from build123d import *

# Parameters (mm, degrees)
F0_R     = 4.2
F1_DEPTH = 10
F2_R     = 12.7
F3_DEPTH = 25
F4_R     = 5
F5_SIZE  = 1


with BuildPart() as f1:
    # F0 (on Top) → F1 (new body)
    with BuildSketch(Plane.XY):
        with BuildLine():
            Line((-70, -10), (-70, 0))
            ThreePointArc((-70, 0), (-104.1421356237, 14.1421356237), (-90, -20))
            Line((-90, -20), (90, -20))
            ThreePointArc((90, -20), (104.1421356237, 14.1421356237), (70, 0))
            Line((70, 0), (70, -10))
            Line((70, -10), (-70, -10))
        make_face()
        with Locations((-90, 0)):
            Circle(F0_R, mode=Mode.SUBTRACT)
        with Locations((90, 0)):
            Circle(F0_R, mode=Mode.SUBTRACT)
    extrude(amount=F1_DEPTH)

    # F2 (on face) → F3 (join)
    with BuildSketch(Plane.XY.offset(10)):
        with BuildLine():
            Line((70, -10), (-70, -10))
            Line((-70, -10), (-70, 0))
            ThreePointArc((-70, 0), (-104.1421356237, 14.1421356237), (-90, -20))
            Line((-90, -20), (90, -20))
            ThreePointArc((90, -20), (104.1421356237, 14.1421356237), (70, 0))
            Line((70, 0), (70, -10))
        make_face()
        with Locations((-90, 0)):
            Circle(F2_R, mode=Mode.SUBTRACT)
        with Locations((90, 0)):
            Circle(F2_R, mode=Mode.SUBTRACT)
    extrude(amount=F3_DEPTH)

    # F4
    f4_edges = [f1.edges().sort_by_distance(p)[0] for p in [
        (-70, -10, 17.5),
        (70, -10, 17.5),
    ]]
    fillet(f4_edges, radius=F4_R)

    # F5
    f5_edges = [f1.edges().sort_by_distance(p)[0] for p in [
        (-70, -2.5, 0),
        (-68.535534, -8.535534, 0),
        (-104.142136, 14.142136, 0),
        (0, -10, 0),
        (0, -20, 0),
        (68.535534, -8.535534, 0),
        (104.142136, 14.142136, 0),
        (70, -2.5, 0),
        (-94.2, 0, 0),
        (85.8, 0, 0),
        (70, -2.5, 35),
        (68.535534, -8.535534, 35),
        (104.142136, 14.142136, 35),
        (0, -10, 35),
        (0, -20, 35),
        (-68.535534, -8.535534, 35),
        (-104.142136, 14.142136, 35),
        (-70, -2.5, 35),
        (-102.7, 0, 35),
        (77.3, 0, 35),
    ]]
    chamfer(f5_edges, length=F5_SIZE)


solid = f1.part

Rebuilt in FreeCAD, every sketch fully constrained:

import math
import FreeCAD as App
import Part
import Sketcher


def edges_at(feature, points):
    """Names of the edges that pass closest to the given points."""
    edges = feature.Shape.Edges
    near = lambda p: min(range(len(edges)), key=lambda i: edges[i].distToShape(Part.Vertex(*p))[0])
    return sorted({f"Edge{near(p) + 1}" for p in points})

doc = App.newDocument("Part")
body = doc.addObject("PartDesign::Body", "Body")

sketch1 = doc.addObject("Sketcher::SketchObject", "Sketch")
body.addObject(sketch1)
sketch1.AttachmentSupport = (doc.XY_Plane, [""])
sketch1.MapMode = "FlatFace"
sketch1.addGeometry(Part.LineSegment(App.Vector(-70, -10, 0), App.Vector(-70, 0, 0)), False)
sketch1.addGeometry(Part.ArcOfCircle(Part.Circle(App.Vector(-90, 0, 0), App.Vector(0, 0, 1), 20), math.radians(0), math.radians(270)), False)
sketch1.addGeometry(Part.LineSegment(App.Vector(-90, -20, 0), App.Vector(90, -20, 0)), False)
sketch1.addGeometry(Part.ArcOfCircle(Part.Circle(App.Vector(90, 0, 0), App.Vector(0, 0, 1), 20), math.radians(-90), math.radians(180)), False)
sketch1.addGeometry(Part.LineSegment(App.Vector(70, 0, 0), App.Vector(70, -10, 0)), False)
sketch1.addGeometry(Part.LineSegment(App.Vector(70, -10, 0), App.Vector(-70, -10, 0)), False)
sketch1.addGeometry(Part.Circle(App.Vector(-90, 0, 0), App.Vector(0, 0, 1), 4.2), False)
sketch1.addGeometry(Part.Circle(App.Vector(90, 0, 0), App.Vector(0, 0, 1), 4.2), False)
sketch1.addConstraint(Sketcher.Constraint("Tangent", 0, 2, 1, 1))
sketch1.addConstraint(Sketcher.Constraint("Tangent", 1, 2, 2, 1))
sketch1.addConstraint(Sketcher.Constraint("Tangent", 2, 2, 3, 1))
sketch1.addConstraint(Sketcher.Constraint("Tangent", 3, 2, 4, 1))
sketch1.addConstraint(Sketcher.Constraint("Coincident", 4, 2, 5, 1))
sketch1.addConstraint(Sketcher.Constraint("Coincident", 5, 2, 0, 1))
sketch1.addConstraint(Sketcher.Constraint("Vertical", 0))
sketch1.addConstraint(Sketcher.Constraint("Horizontal", 2))
sketch1.addConstraint(Sketcher.Constraint("Vertical", 4))
sketch1.addConstraint(Sketcher.Constraint("Horizontal", 5))
sketch1.addConstraint(Sketcher.Constraint("Coincident", 6, 3, 1, 3))
sketch1.addConstraint(Sketcher.Constraint("Coincident", 7, 3, 3, 3))
sketch1.addConstraint(Sketcher.Constraint("Equal", 1, 3))
sketch1.addConstraint(Sketcher.Constraint("Equal", 6, 7))
sketch1.addConstraint(Sketcher.Constraint("Symmetric", 1, 3, 3, 3, -1, 1))
sketch1.addConstraint(Sketcher.Constraint("Radius", 1, 20.0))
sketch1.addConstraint(Sketcher.Constraint("Diameter", 6, 8.4))
sketch1.addConstraint(Sketcher.Constraint("DistanceX", 2, 1, 2, 2, 180.0))
sketch1.addConstraint(Sketcher.Constraint("DistanceY", 0, 1, 0, 2, 10.0))
pad1 = doc.addObject("PartDesign::Pad", "Pad")
body.addObject(pad1)
pad1.Profile = sketch1
pad1.Length = 10

sketch2 = doc.addObject("Sketcher::SketchObject", "Sketch001")
body.addObject(sketch2)
sketch2.AttachmentSupport = (doc.XY_Plane, [""])
sketch2.MapMode = "FlatFace"
sketch2.AttachmentOffset = App.Placement(App.Vector(0, 0, 10), App.Rotation())
sketch2.addGeometry(Part.LineSegment(App.Vector(70, -10, 0), App.Vector(-70, -10, 0)), False)
sketch2.addGeometry(Part.LineSegment(App.Vector(-70, -10, 0), App.Vector(-70, 0, 0)), False)
sketch2.addGeometry(Part.ArcOfCircle(Part.Circle(App.Vector(-90, 0, 0), App.Vector(0, 0, 1), 20), math.radians(0), math.radians(270)), False)
sketch2.addGeometry(Part.LineSegment(App.Vector(-90, -20, 0), App.Vector(90, -20, 0)), False)
sketch2.addGeometry(Part.ArcOfCircle(Part.Circle(App.Vector(90, 0, 0), App.Vector(0, 0, 1), 20), math.radians(-90), math.radians(180)), False)
sketch2.addGeometry(Part.LineSegment(App.Vector(70, 0, 0), App.Vector(70, -10, 0)), False)
sketch2.addGeometry(Part.Circle(App.Vector(-90, 0, 0), App.Vector(0, 0, 1), 13), False)
sketch2.addGeometry(Part.Circle(App.Vector(90, 0, 0), App.Vector(0, 0, 1), 13), False)
sketch2.addConstraint(Sketcher.Constraint("Coincident", 0, 2, 1, 1))
sketch2.addConstraint(Sketcher.Constraint("Tangent", 1, 2, 2, 1))
sketch2.addConstraint(Sketcher.Constraint("Tangent", 2, 2, 3, 1))
sketch2.addConstraint(Sketcher.Constraint("Tangent", 3, 2, 4, 1))
sketch2.addConstraint(Sketcher.Constraint("Tangent", 4, 2, 5, 1))
sketch2.addConstraint(Sketcher.Constraint("Coincident", 5, 2, 0, 1))
sketch2.addConstraint(Sketcher.Constraint("Horizontal", 0))
sketch2.addConstraint(Sketcher.Constraint("Vertical", 1))
sketch2.addConstraint(Sketcher.Constraint("Horizontal", 3))
sketch2.addConstraint(Sketcher.Constraint("Vertical", 5))
sketch2.addConstraint(Sketcher.Constraint("Coincident", 6, 3, 2, 3))
sketch2.addConstraint(Sketcher.Constraint("Coincident", 7, 3, 4, 3))
sketch2.addConstraint(Sketcher.Constraint("Equal", 2, 4))
sketch2.addConstraint(Sketcher.Constraint("Equal", 6, 7))
sketch2.addConstraint(Sketcher.Constraint("Symmetric", 2, 3, 4, 3, -1, 1))
sketch2.addConstraint(Sketcher.Constraint("Radius", 2, 20.0))
sketch2.addConstraint(Sketcher.Constraint("Diameter", 6, 25.4))
sketch2.addConstraint(Sketcher.Constraint("DistanceX", 0, 2, 0, 1, 140.0))
sketch2.addConstraint(Sketcher.Constraint("DistanceY", 1, 1, 1, 2, 10.0))
pad2 = doc.addObject("PartDesign::Pad", "Pad001")
body.addObject(pad2)
pad2.Profile = sketch2
pad2.Length = 25
doc.recompute()

fillet = doc.addObject("PartDesign::Fillet", "Fillet")
body.addObject(fillet)
fillet.Base = (pad2, edges_at(pad2, [(-70, -10, 17.5), (70, -10, 17.5)]))
fillet.Radius = 5
doc.recompute()

chamfer = doc.addObject("PartDesign::Chamfer", "Chamfer")
body.addObject(chamfer)
chamfer.Base = (fillet, edges_at(fillet, [
    (-70, -2.5, 0),
    (-68.536, -8.536, 0),
    (-104.142, 14.142, 0),
    (0, -10, 0),
    (0, -20, 0),
    (68.536, -8.536, 0),
    (104.142, 14.142, 0),
    (70, -2.5, 0),
    (-94.2, 0, 0),
    (85.8, 0, 0),
    (70, -2.5, 35),
    (68.536, -8.536, 35),
    (104.142, 14.142, 35),
    (0, -10, 35),
    (0, -20, 35),
    (-68.536, -8.536, 35),
    (-104.142, 14.142, 35),
    (-70, -2.5, 35),
    (-102.7, 0, 35),
    (77.3, 0, 35),
]))
chamfer.Size = 1

doc.recompute()
